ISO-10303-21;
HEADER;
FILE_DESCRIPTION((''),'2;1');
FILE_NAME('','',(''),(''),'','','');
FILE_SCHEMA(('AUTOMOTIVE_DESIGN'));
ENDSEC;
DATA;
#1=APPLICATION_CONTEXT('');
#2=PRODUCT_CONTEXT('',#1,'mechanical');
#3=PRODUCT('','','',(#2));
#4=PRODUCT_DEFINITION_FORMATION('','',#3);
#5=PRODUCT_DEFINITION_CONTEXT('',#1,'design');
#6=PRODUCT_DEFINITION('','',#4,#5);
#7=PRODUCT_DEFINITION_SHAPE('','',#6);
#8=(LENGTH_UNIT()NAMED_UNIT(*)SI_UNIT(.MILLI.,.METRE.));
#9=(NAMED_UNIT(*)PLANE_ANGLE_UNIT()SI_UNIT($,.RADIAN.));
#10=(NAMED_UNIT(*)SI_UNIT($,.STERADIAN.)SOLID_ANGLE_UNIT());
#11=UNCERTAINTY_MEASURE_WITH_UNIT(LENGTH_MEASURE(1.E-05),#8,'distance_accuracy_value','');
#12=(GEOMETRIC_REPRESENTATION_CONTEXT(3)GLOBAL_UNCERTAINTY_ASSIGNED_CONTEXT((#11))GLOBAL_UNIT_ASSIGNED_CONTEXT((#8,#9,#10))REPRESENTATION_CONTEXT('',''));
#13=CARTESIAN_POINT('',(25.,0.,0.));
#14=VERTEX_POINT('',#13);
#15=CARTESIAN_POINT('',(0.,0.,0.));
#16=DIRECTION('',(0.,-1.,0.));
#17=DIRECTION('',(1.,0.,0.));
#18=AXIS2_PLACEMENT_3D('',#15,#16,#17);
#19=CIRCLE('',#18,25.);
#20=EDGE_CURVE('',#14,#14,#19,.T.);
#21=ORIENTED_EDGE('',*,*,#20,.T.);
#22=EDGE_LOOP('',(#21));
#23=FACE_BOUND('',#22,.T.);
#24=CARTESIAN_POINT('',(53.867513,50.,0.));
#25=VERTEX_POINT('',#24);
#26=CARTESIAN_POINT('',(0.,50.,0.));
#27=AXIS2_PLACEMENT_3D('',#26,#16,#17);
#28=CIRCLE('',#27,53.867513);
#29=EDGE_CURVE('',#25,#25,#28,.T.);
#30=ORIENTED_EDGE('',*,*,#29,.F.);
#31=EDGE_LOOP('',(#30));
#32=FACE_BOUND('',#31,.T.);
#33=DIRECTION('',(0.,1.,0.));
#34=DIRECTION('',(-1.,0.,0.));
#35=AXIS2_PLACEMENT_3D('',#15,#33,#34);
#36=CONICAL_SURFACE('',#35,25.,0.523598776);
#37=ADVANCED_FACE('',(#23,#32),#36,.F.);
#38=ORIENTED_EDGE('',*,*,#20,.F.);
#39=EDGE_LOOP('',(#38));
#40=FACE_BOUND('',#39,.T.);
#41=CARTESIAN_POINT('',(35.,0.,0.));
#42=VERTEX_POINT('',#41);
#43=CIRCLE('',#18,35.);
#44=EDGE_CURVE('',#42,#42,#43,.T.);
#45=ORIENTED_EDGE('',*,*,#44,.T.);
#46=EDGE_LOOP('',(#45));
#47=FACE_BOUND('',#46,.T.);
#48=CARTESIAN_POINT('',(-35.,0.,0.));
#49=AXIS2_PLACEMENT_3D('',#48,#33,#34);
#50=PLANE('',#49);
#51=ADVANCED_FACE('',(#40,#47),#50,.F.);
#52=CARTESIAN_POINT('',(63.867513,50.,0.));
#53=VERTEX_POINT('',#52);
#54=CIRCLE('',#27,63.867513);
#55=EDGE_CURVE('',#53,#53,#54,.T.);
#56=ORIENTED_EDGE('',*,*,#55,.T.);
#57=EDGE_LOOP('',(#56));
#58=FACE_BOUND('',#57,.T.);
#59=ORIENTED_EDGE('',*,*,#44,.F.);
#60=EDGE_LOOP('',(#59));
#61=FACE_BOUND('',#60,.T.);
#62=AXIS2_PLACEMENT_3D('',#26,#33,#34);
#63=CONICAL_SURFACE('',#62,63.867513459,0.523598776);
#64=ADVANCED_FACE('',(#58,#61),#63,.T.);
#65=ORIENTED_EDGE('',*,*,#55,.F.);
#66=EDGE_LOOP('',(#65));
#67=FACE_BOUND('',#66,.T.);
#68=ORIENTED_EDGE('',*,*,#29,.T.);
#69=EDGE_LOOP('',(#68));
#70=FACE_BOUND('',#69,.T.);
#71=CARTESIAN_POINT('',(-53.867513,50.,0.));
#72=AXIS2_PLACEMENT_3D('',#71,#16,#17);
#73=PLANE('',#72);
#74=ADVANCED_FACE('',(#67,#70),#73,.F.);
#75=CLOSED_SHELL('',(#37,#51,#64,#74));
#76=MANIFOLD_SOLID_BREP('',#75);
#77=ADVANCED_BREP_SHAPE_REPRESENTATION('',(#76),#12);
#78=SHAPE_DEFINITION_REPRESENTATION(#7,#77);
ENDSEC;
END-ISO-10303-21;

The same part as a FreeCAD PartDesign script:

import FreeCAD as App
import Part
import Sketcher
from FreeCAD import Vector
Q = App.Units.Quantity

doc = App.newDocument("Part")
body = doc.addObject("PartDesign::Body", "Body")

# Sketch on XY plane
sketch1 = body.newObject("Sketcher::SketchObject", "Sketch")
sketch1.AttachmentSupport = (doc.getObject("XY_Plane"), [""])
sketch1.MapMode = "FlatFace"
sketch1.addGeometry([
    Part.LineSegment(Vector(-25, 0, 0), Vector(-54, 50, 0)),
    Part.LineSegment(Vector(-54, 50, 0), Vector(-64, 50, 0)),
    Part.LineSegment(Vector(-64, 50, 0), Vector(-35, 0, 0)),
    Part.LineSegment(Vector(-35, 0, 0), Vector(-25, 0, 0)),
], False)
sketch1.addConstraint([
    Sketcher.Constraint("Coincident", 0, 2, 1, 1),
    Sketcher.Constraint("Coincident", 1, 2, 2, 1),
    Sketcher.Constraint("Coincident", 2, 2, 3, 1),
    Sketcher.Constraint("Coincident", 3, 2, 0, 1),
    Sketcher.Constraint("Horizontal", 1),
    Sketcher.Constraint("Horizontal", 3),
    Sketcher.Constraint("PointOnObject", 2, 2, -1),
    Sketcher.Constraint("Parallel", 0, 2),
    Sketcher.Constraint("DistanceX", 1, 2, 1, 1, 10.0),
    Sketcher.Constraint("Angle", 0, Q("120 deg")),
    Sketcher.Constraint("DistanceY", -1, 1, 0, 2, 50.0),
    Sketcher.Constraint("DistanceX", 2, 2, -1, 1, 35.0),
])
revolution = body.newObject("PartDesign::Revolution", "Revolution")
revolution.Profile = sketch1
revolution.ReferenceAxis = (sketch1, ["V_Axis"])
revolution.Angle = 360

doc.recompute()
